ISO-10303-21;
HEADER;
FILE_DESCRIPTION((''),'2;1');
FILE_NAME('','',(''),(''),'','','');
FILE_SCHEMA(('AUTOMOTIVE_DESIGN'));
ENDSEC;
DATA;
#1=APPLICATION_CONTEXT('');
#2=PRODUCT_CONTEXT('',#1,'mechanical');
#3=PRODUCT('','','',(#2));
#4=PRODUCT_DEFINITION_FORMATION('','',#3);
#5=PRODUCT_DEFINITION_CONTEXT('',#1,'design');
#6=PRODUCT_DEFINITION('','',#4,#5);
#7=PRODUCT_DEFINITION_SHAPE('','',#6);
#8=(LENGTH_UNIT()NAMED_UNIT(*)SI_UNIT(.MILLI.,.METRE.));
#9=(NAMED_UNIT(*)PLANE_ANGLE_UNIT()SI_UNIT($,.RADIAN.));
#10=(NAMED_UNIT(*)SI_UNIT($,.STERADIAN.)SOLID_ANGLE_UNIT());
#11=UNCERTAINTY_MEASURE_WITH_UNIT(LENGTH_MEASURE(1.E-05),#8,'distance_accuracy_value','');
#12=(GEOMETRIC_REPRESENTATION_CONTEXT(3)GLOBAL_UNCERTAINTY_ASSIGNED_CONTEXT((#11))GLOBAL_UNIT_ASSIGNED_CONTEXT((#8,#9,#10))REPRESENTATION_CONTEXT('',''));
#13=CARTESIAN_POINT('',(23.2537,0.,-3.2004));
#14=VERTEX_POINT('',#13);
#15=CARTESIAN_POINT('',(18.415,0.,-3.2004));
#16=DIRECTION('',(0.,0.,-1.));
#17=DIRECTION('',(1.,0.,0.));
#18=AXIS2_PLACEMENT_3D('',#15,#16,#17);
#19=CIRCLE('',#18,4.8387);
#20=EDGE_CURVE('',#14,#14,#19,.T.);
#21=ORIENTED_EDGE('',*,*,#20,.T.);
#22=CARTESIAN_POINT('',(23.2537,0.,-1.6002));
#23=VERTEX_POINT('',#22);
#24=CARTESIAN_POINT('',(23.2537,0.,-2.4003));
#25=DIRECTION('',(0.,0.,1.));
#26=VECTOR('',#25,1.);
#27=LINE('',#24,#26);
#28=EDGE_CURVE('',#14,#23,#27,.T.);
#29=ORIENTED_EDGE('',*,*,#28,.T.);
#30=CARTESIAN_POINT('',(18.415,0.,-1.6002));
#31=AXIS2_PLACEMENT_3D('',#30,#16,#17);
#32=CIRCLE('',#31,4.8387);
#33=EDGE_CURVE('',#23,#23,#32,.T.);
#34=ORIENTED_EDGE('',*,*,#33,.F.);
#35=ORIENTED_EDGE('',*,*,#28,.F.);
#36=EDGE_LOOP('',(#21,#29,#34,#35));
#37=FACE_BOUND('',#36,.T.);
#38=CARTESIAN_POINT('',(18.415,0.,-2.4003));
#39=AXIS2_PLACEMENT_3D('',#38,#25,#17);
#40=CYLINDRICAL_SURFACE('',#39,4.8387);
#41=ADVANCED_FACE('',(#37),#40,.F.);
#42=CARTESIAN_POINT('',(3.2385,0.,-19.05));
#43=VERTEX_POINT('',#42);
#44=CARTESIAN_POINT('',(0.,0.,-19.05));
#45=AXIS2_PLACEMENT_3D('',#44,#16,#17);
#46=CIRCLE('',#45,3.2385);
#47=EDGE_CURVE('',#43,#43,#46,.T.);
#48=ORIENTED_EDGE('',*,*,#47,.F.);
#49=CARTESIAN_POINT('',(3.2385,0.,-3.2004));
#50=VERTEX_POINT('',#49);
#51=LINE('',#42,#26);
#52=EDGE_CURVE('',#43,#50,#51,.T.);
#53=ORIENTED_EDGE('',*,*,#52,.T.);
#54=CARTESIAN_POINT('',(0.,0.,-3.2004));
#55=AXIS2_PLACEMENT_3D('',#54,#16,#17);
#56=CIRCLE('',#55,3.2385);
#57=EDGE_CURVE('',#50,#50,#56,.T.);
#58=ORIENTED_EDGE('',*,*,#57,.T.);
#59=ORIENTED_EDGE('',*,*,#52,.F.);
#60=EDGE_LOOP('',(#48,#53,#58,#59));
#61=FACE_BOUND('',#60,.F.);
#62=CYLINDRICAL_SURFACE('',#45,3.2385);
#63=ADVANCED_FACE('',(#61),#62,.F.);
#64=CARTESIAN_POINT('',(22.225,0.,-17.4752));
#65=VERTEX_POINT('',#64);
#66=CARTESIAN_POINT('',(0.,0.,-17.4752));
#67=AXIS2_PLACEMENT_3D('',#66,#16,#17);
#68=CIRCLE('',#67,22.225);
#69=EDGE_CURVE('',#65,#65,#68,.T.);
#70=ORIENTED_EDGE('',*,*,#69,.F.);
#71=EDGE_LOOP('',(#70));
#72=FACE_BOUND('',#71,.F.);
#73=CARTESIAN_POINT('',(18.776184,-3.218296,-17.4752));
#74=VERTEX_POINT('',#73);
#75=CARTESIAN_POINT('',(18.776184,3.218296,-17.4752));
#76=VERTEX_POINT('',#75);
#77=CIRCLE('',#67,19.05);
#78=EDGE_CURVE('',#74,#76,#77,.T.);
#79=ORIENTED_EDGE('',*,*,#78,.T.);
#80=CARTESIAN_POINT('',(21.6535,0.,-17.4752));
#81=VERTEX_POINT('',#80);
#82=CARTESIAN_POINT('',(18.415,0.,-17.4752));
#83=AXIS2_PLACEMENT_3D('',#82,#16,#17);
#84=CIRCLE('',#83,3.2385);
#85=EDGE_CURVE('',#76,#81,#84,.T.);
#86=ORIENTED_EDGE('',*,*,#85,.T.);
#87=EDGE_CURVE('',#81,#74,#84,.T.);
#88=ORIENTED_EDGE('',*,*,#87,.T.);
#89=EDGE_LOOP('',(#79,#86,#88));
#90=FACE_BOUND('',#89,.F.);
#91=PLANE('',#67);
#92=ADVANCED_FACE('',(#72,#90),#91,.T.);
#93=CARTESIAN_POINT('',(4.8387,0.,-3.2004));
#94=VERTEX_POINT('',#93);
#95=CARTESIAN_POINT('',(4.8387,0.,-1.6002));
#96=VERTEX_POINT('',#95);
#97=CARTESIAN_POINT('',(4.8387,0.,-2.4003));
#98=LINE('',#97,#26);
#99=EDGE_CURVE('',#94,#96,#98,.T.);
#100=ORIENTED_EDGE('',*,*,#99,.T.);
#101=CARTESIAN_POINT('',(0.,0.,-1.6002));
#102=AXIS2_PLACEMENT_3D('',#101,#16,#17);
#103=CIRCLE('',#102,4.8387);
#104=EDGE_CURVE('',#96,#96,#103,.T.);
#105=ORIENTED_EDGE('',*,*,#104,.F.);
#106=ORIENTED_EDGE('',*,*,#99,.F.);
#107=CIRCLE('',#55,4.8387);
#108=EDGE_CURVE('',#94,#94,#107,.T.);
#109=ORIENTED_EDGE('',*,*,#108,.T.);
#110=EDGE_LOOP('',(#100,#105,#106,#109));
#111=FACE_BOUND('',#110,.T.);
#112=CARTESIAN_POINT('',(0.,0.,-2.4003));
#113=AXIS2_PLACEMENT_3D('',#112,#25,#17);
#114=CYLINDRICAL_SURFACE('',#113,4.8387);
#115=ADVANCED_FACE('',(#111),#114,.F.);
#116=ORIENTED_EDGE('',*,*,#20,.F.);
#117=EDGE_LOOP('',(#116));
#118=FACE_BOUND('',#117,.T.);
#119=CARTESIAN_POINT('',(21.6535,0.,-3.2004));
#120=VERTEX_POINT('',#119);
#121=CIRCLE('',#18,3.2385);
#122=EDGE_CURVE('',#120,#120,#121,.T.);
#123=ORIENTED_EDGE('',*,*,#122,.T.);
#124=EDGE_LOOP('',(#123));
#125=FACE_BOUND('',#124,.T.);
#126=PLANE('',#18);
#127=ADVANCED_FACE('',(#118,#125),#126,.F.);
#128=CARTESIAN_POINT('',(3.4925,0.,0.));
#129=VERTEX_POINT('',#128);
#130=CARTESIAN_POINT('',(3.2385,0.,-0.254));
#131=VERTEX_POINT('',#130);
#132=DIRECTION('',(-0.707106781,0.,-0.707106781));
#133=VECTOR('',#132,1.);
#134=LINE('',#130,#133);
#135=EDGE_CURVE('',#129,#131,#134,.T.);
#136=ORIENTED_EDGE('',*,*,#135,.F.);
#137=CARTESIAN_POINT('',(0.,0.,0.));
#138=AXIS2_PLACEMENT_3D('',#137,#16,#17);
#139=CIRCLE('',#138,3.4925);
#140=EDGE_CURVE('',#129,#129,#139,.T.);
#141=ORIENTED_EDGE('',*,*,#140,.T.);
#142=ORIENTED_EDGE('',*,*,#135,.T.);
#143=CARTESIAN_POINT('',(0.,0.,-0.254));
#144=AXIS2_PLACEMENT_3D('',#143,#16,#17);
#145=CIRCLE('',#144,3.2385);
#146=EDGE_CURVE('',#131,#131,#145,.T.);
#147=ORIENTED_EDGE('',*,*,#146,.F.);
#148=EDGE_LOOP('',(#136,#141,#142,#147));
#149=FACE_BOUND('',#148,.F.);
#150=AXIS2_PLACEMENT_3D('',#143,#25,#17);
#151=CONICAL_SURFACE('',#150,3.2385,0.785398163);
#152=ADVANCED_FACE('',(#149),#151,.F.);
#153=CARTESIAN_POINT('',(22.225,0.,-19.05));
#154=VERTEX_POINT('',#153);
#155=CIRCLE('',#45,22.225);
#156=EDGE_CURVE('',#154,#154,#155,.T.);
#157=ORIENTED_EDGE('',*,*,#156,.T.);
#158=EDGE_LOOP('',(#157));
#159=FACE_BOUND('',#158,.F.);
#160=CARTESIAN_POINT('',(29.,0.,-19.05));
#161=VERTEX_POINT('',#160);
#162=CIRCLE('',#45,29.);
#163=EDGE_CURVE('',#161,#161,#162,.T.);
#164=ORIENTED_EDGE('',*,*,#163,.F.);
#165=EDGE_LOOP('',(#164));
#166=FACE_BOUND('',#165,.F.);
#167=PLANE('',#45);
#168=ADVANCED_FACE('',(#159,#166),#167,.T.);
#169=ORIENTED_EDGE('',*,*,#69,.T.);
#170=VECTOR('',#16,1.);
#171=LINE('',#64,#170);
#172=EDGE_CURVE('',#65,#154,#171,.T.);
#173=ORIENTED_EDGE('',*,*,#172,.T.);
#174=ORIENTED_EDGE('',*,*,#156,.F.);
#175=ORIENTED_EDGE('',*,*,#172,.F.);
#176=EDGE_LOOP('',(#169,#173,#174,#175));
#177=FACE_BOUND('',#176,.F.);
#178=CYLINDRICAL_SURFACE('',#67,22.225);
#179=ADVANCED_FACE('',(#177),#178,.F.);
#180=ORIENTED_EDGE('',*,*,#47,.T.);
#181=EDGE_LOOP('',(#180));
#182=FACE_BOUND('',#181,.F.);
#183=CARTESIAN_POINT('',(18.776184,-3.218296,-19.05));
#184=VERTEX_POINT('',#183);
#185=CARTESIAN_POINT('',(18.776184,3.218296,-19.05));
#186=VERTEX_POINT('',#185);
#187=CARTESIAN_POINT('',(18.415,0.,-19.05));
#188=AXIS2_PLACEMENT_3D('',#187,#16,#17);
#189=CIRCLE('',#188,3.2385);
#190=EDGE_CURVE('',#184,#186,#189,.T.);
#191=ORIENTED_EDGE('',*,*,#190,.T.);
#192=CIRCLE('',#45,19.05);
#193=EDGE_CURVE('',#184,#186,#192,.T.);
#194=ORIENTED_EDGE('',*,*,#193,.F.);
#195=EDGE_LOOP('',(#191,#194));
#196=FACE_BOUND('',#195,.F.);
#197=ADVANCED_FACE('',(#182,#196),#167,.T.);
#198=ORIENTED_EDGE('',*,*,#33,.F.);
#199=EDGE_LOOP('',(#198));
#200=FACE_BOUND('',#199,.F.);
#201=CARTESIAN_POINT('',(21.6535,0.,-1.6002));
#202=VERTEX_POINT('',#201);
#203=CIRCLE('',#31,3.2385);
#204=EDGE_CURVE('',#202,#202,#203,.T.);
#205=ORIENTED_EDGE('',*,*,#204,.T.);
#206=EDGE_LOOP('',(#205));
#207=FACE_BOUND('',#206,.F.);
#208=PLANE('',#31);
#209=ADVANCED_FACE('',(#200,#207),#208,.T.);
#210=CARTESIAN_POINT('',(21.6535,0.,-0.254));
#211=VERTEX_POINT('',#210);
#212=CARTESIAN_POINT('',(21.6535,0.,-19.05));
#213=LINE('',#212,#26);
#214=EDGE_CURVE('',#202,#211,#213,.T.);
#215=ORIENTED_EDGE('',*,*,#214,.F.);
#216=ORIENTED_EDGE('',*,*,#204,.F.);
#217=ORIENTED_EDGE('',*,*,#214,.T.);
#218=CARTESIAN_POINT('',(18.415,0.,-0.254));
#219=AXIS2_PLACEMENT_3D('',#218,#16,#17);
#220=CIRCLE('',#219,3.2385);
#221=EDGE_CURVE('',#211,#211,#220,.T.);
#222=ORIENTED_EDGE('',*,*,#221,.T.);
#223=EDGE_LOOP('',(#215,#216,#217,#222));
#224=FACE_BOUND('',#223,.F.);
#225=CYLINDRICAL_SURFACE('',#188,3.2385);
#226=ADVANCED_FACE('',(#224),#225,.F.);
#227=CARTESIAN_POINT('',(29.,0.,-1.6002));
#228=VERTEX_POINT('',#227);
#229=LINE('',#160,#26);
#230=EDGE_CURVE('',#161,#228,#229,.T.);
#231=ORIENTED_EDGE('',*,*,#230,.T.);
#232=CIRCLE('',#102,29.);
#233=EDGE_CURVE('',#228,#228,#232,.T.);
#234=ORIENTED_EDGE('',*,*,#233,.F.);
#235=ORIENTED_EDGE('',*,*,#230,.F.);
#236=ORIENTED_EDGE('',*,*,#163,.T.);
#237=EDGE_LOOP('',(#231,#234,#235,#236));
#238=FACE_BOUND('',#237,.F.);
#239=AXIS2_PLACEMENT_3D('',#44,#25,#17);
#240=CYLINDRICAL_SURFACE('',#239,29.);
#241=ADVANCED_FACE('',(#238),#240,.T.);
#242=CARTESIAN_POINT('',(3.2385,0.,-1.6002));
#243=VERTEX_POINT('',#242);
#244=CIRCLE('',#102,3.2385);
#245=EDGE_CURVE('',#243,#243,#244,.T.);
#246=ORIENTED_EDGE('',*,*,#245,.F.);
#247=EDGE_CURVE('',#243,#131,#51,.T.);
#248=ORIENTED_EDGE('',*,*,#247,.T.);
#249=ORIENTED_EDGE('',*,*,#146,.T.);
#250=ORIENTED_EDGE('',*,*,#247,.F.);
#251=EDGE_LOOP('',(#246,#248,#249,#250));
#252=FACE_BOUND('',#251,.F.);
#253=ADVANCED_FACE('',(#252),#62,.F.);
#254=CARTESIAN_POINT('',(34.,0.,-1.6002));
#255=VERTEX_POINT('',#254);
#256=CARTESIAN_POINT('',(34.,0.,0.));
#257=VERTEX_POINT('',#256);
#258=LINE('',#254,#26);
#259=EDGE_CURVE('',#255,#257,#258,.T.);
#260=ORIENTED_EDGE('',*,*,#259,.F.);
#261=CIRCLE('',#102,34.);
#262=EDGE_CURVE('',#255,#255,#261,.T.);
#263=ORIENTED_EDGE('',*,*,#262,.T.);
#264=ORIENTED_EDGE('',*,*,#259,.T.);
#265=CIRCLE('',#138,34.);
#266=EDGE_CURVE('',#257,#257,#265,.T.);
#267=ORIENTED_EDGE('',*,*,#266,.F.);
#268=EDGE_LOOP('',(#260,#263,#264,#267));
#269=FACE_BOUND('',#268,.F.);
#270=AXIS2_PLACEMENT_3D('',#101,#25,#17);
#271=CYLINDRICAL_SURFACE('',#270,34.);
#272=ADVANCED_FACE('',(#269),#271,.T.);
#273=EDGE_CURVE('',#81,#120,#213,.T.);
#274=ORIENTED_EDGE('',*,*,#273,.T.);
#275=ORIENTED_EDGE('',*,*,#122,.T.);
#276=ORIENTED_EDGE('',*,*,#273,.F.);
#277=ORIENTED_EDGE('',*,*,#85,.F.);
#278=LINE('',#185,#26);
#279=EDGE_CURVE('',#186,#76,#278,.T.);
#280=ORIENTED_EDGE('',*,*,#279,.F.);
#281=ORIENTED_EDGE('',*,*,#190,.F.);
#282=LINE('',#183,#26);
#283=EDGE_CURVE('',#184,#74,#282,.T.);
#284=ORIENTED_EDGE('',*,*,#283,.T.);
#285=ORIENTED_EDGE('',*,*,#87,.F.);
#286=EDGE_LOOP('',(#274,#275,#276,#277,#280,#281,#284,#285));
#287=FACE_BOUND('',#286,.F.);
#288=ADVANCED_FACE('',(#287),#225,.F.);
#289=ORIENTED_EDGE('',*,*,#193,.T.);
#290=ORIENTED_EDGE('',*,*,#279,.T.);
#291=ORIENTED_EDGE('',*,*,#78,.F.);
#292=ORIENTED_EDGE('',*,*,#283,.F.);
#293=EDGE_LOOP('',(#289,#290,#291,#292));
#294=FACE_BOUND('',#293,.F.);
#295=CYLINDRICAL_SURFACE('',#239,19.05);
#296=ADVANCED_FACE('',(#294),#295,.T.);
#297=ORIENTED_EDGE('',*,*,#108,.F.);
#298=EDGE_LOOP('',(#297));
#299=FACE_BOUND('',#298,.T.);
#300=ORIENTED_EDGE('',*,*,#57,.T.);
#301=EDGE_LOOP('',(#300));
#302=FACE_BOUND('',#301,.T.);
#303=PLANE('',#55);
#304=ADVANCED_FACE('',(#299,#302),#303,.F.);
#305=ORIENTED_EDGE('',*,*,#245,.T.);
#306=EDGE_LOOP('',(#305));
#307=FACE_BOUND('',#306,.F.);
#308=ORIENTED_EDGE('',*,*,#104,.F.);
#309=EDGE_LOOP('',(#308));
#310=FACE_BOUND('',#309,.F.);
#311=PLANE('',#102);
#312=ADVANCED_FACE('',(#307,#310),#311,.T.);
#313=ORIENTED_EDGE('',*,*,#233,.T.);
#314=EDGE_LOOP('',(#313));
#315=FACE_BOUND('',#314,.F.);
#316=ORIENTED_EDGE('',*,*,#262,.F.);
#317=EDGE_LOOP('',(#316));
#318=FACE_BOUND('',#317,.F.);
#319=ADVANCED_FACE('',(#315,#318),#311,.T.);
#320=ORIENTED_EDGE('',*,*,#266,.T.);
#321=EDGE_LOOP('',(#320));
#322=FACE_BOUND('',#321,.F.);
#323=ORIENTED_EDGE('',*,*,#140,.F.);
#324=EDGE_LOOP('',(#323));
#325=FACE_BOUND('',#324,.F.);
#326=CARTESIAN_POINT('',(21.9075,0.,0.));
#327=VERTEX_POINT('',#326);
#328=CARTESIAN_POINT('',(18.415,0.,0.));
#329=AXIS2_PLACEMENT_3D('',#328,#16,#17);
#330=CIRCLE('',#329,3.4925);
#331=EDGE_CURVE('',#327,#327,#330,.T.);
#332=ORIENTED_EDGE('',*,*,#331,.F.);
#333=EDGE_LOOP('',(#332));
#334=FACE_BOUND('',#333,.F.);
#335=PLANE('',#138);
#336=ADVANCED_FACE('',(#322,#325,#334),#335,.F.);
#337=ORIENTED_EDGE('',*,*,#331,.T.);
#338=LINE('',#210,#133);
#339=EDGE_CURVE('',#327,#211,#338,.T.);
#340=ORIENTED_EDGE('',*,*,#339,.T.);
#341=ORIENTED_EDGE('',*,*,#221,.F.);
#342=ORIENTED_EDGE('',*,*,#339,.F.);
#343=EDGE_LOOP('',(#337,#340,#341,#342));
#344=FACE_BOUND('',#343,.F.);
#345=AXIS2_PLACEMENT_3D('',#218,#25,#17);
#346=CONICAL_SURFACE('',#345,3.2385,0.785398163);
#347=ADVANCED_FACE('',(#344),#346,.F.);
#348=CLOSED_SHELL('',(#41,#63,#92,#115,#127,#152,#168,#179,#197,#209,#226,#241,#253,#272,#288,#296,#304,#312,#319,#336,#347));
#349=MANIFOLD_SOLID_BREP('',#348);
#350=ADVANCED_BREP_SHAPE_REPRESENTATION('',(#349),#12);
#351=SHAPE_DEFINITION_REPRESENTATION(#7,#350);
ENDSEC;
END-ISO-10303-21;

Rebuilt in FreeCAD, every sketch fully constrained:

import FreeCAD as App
import Part
import Sketcher

V = App.Vector
Q = App.Units.Quantity


def edges_at(feature, points):
    """Names of the edges that pass closest to the given points."""
    edges = feature.Shape.Edges
    near = lambda p: min(range(len(edges)), key=lambda i: edges[i].distToShape(Part.Vertex(*p))[0])
    return sorted({f"Edge{near(p) + 1}" for p in points})

doc = App.newDocument("Part")
params = doc.addObject("Spreadsheet::Sheet", "Params")
for row, (alias, value) in enumerate([
    ("sketch1_width", "0.75 in"),
    ("sketch1_width2", "0.125 in"),
    ("sketch1_height", "0.062 in"),
    ("sketch1_height2", "0.687 in"),
    ("revolution_angle", "360 deg"),
    ("sketch2_diameter", "0.255 in"),
    ("sketch3_width", "0.063 in"),
    ("groove_angle", "360 deg"),
    ("sketch4_width", "0.063 in"),
    ("groove2_angle", "360 deg"),
    ("chamfer_size", "0.01 in"),
], start=1):
    params.set(f"A{row}", alias)
    params.set(f"B{row}", "=" + value)
    params.setAlias(f"B{row}", alias)

body = doc.addObject("PartDesign::Body", "Body")

sketch1 = body.newObject("Sketcher::SketchObject", "Sketch")
sketch1.AttachmentSupport = (doc.getObject("XZ_Plane"), [""])
sketch1.MapMode = "FlatFace"
sketch1.addGeometry(Part.LineSegment(V(34, 0, 0), V(0, 0, 0)), False)
sketch1.addGeometry(Part.LineSegment(V(0, 0, 0), V(0, -19.05, 0)), False)
sketch1.addGeometry(Part.LineSegment(V(0, -19.05, 0), V(19.05, -19.05, 0)), False)
sketch1.addGeometry(Part.LineSegment(V(19.05, -19.05, 0), V(19.05, -17.4752, 0)), False)
sketch1.addGeometry(Part.LineSegment(V(19.05, -17.4752, 0), V(22.225, -17.4752, 0)), False)
sketch1.addGeometry(Part.LineSegment(V(22.225, -17.4752, 0), V(22.225, -19.05, 0)), False)
sketch1.addGeometry(Part.LineSegment(V(22.225, -19.05, 0), V(29, -19.05, 0)), False)
sketch1.addGeometry(Part.LineSegment(V(29, -19.05, 0), V(29, -1.6002, 0)), False)
sketch1.addGeometry(Part.LineSegment(V(29, -1.6002, 0), V(34, -1.6002, 0)), False)
sketch1.addGeometry(Part.LineSegment(V(34, -1.6002, 0), V(34, 0, 0)), False)
sketch1.addConstraint(Sketcher.Constraint("Coincident", 0, 2, 1, 1))
sketch1.addConstraint(Sketcher.Constraint("Coincident", 1, 2, 2, 1))
sketch1.addConstraint(Sketcher.Constraint("Coincident", 2, 2, 3, 1))
sketch1.addConstraint(Sketcher.Constraint("Coincident", 3, 2, 4, 1))
sketch1.addConstraint(Sketcher.Constraint("Coincident", 4, 2, 5, 1))
sketch1.addConstraint(Sketcher.Constraint("Coincident", 5, 2, 6, 1))
sketch1.addConstraint(Sketcher.Constraint("Coincident", 6, 2, 7, 1))
sketch1.addConstraint(Sketcher.Constraint("Coincident", 7, 2, 8, 1))
sketch1.addConstraint(Sketcher.Constraint("Coincident", 8, 2, 9, 1))
sketch1.addConstraint(Sketcher.Constraint("Coincident", 9, 2, 0, 1))
sketch1.addConstraint(Sketcher.Constraint("Horizontal", 0))
sketch1.addConstraint(Sketcher.Constraint("Vertical", 1))
sketch1.addConstraint(Sketcher.Constraint("Horizontal", 2))
sketch1.addConstraint(Sketcher.Constraint("Vertical", 3))
sketch1.addConstraint(Sketcher.Constraint("Horizontal", 4))
sketch1.addConstraint(Sketcher.Constraint("Vertical", 5))
sketch1.addConstraint(Sketcher.Constraint("Horizontal", 6))
sketch1.addConstraint(Sketcher.Constraint("Vertical", 7))
sketch1.addConstraint(Sketcher.Constraint("Horizontal", 8))
sketch1.addConstraint(Sketcher.Constraint("Vertical", 9))
sketch1.addConstraint(Sketcher.Constraint("Coincident", 0, 2, -1, 1))
sketch1.addConstraint(Sketcher.Constraint("Horizontal", 2, 2, 5, 2))
sketch1.addConstraint(Sketcher.Constraint("Equal", 2, 1))
sketch1.addConstraint(Sketcher.Constraint("DistanceX", 2, 1, 2, 2, Q("0.75 in")))
sketch1.addConstraint(Sketcher.Constraint("DistanceX", 4, 1, 4, 2, Q("0.125 in")))
sketch1.addConstraint(Sketcher.Constraint("DistanceY", 3, 1, 3, 2, Q("0.062 in")))
sketch1.addConstraint(Sketcher.Constraint("DistanceY", 7, 1, 7, 2, Q("0.687 in")))
sketch1.addConstraint(Sketcher.Constraint("DistanceX", 0, 2, 0, 1, 34.0))
sketch1.addConstraint(Sketcher.Constraint("DistanceX", 6, 1, 6, 2, 6.775))
sketch1.setExpression("Constraints[23]", "Params.sketch1_width")
sketch1.setExpression("Constraints[24]", "Params.sketch1_width2")
sketch1.setExpression("Constraints[25]", "Params.sketch1_height")
sketch1.setExpression("Constraints[26]", "Params.sketch1_height2")
revolution = body.newObject("PartDesign::Revolution", "Revolution")
revolution.Profile = sketch1
revolution.ReferenceAxis = (sketch1, ["V_Axis"])
revolution.setExpression("Angle", "Params.revolution_angle")

sketch2 = body.newObject("Sketcher::SketchObject", "Sketch001")
sketch2.AttachmentSupport = (doc.getObject("XY_Plane"), [""])
sketch2.MapMode = "FlatFace"
sketch2.AttachmentOffset = App.Placement(V(0, 0, -0.75 * 25.4), App.Rotation())
sketch2.addGeometry(Part.Circle(V(0, 0, 0), V(0, 0, 1), 3.2385), False)
sketch2.addGeometry(Part.Circle(V(18.415, 0, 0), V(0, 0, 1), 3.2385), False)
sketch2.addConstraint(Sketcher.Constraint("Coincident", 0, 3, -1, 1))
sketch2.addConstraint(Sketcher.Constraint("Equal", 0, 1))
sketch2.addConstraint(Sketcher.Constraint("PointOnObject", 1, 3, -1))
sketch2.addConstraint(Sketcher.Constraint("Diameter", 0, Q("0.255 in")))
sketch2.addConstraint(Sketcher.Constraint("DistanceX", -1, 1, 1, 3, Q("0.725 in")))
sketch2.setExpression("Constraints[3]", "Params.sketch2_diameter")
pocket1 = body.newObject("PartDesign::Pocket", "Pocket")
pocket1.Profile = sketch2
pocket1.Type = "ThroughAll"
pocket1.Reversed = True

sketch3 = body.newObject("Sketcher::SketchObject", "Sketch002")
sketch3.AttachmentSupport = (doc.getObject("XZ_Plane"), [""])
sketch3.MapMode = "FlatFace"
sketch3.addGeometry(Part.LineSegment(V(3.2385, -1.6002, 0), V(3.2385, -3.2004, 0)), False)
sketch3.addGeometry(Part.LineSegment(V(3.2385, -3.2004, 0), V(4.8387, -3.2004, 0)), False)
sketch3.addGeometry(Part.LineSegment(V(4.8387, -3.2004, 0), V(4.8387, -1.6002, 0)), False)
sketch3.addGeometry(Part.LineSegment(V(4.8387, -1.6002, 0), V(3.2385, -1.6002, 0)), False)
sketch3.addConstraint(Sketcher.Constraint("Coincident", 0, 2, 1, 1))
sketch3.addConstraint(Sketcher.Constraint("Coincident", 1, 2, 2, 1))
sketch3.addConstraint(Sketcher.Constraint("Coincident", 2, 2, 3, 1))
sketch3.addConstraint(Sketcher.Constraint("Coincident", 3, 2, 0, 1))
sketch3.addConstraint(Sketcher.Constraint("Vertical", 0))
sketch3.addConstraint(Sketcher.Constraint("Horizontal", 1))
sketch3.addConstraint(Sketcher.Constraint("Vertical", 2))
sketch3.addConstraint(Sketcher.Constraint("Horizontal", 3))
sketch3.addConstraint(Sketcher.Constraint("Equal", 3, 0))
sketch3.addConstraint(Sketcher.Constraint("DistanceX", 1, 1, 1, 2, Q("0.063 in")))
sketch3.addConstraint(Sketcher.Constraint("DistanceY", 0, 2, -1, 1, Q("0.126 in")))
sketch3.addConstraint(Sketcher.Constraint("DistanceX", -1, 1, 0, 2, Q("0.1275 in")))
sketch3.setExpression("Constraints[9]", "Params.sketch3_width")
groove = body.newObject("PartDesign::Groove", "Groove")
groove.Profile = sketch3
groove.ReferenceAxis = (sketch3, ["V_Axis"])
groove.setExpression("Angle", "Params.groove_angle")

sketch4 = body.newObject("Sketcher::SketchObject", "Sketch003")
sketch4.AttachmentSupport = (doc.getObject("XZ_Plane"), [""])
sketch4.MapMode = "FlatFace"
sketch4.addGeometry(Part.LineSegment(V(21.6535, -1.6002, 0), V(21.6535, -3.2004, 0)), False)
sketch4.addGeometry(Part.LineSegment(V(21.6535, -3.2004, 0), V(23.2537, -3.2004, 0)), False)
sketch4.addGeometry(Part.LineSegment(V(23.2537, -3.2004, 0), V(23.2537, -1.6002, 0)), False)
sketch4.addGeometry(Part.LineSegment(V(23.2537, -1.6002, 0), V(21.6535, -1.6002, 0)), False)
sketch4.addGeometry(Part.LineSegment(V(18.415, -1.6002, 0), V(18.415, -3.2004, 0)), True)
sketch4.addConstraint(Sketcher.Constraint("Coincident", 0, 2, 1, 1))
sketch4.addConstraint(Sketcher.Constraint("Coincident", 1, 2, 2, 1))
sketch4.addConstraint(Sketcher.Constraint("Coincident", 2, 2, 3, 1))
sketch4.addConstraint(Sketcher.Constraint("Coincident", 3, 2, 0, 1))
sketch4.addConstraint(Sketcher.Constraint("Vertical", 0))
sketch4.addConstraint(Sketcher.Constraint("Horizontal", 1))
sketch4.addConstraint(Sketcher.Constraint("Vertical", 2))
sketch4.addConstraint(Sketcher.Constraint("Horizontal", 3))
sketch4.addConstraint(Sketcher.Constraint("Vertical", 4))
sketch4.addConstraint(Sketcher.Constraint("Horizontal", 3, 2, 4, 1))
sketch4.addConstraint(Sketcher.Constraint("Horizontal", 1, 2, 4, 2))
sketch4.addConstraint(Sketcher.Constraint("Equal", 3, 0))
sketch4.addConstraint(Sketcher.Constraint("DistanceX", 1, 1, 1, 2, Q("0.063 in")))
sketch4.addConstraint(Sketcher.Constraint("DistanceY", 0, 2, -1, 1, Q("0.126 in")))
sketch4.addConstraint(Sketcher.Constraint("DistanceX", -1, 1, 4, 1, Q("0.725 in")))
sketch4.addConstraint(Sketcher.Constraint("DistanceX", -1, 1, 0, 2, Q("0.8525 in")))
sketch4.setExpression("Constraints[12]", "Params.sketch4_width")
groove2 = body.newObject("PartDesign::Groove", "Groove001")
groove2.Profile = sketch4
groove2.ReferenceAxis = (sketch4, ["Axis0"])
groove2.setExpression("Angle", "Params.groove2_angle")
doc.recompute()

chamfer = body.newObject("PartDesign::Chamfer", "Chamfer")
chamfer.Base = (groove2, edges_at(groove2, [(-3.239, 0, 0), (15.177, 0, 0)]))
chamfer.setExpression("Size", "Params.chamfer_size")

doc.recompute()
